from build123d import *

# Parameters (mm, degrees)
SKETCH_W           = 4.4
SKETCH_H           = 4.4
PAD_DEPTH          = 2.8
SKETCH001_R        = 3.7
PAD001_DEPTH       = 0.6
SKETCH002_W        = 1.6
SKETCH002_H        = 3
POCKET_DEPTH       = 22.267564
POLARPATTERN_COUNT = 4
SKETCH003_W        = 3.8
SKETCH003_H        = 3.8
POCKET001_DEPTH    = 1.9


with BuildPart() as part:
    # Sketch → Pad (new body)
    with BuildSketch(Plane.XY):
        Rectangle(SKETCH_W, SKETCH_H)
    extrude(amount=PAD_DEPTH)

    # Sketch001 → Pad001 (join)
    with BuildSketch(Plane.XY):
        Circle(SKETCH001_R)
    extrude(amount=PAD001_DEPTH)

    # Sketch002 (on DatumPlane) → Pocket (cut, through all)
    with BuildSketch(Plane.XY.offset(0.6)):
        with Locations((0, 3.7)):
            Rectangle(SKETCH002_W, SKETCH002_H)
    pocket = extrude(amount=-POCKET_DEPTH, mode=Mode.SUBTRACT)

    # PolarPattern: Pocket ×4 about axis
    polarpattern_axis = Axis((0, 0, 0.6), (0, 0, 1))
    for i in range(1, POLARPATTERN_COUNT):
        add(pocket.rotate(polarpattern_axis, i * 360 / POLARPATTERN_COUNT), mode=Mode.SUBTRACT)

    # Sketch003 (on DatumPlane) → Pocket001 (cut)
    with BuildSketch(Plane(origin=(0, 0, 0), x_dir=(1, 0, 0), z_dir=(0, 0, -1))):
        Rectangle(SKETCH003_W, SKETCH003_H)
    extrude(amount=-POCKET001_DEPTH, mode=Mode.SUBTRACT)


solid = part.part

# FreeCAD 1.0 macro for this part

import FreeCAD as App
import Part
import Sketcher

V = App.Vector


def add_polygon(sketch, points):
    """Adds a closed chain of lines whose ends are joined by coincident constraints."""
    first, n = sketch.GeometryCount, len(points)
    for a, b in zip(points, points[1:] + points[:1]):
        sketch.addGeometry(Part.LineSegment(App.Vector(*a, 0), App.Vector(*b, 0)), False)
    for i in range(n):
        sketch.addConstraint(Sketcher.Constraint("Coincident", first + i, 2, first + (i + 1) % n, 1))

doc = App.newDocument("Part")
body = doc.addObject("PartDesign::Body", "Body")

# Sketch on XY plane
sketch1 = body.newObject("Sketcher::SketchObject", "Sketch")
sketch1.AttachmentSupport = (doc.getObject("XY_Plane"), [""])
sketch1.MapMode = "FlatFace"
add_polygon(sketch1, [(-2.2, 2.2), (-2.2, -2.2), (2.2, -2.2), (2.2, 2.2)])  # lines 0-3
sketch1.addConstraint(Sketcher.Constraint("Vertical", 0))
sketch1.addConstraint(Sketcher.Constraint("Horizontal", 1))
sketch1.addConstraint(Sketcher.Constraint("Vertical", 2))
sketch1.addConstraint(Sketcher.Constraint("Horizontal", 3))
sketch1.addConstraint(Sketcher.Constraint("Symmetric", 0, 2, 2, 2, -1, 1))
sketch1.addConstraint(Sketcher.Constraint("Equal", 3, 0))
sketch1.addConstraint(Sketcher.Constraint("DistanceX", 1, 1, 1, 2, 4.4))
pad1 = body.newObject("PartDesign::Pad", "Pad")
pad1.Profile = sketch1
pad1.Length = 2.8

# Sketch on XY plane
sketch2 = body.newObject("Sketcher::SketchObject", "Sketch001")
sketch2.AttachmentSupport = (doc.getObject("XY_Plane"), [""])
sketch2.MapMode = "FlatFace"
sketch2.addGeometry(Part.Circle(V(0, 0, 0), V(0, 0, 1), 3.7), False)
sketch2.addConstraint(Sketcher.Constraint("Coincident", 0, 3, -1, 1))
sketch2.addConstraint(Sketcher.Constraint("Diameter", 0, 7.4))
pad2 = body.newObject("PartDesign::Pad", "Pad001")
pad2.Profile = sketch2
pad2.Length = 0.6

# Sketch on XY plane
sketch3 = body.newObject("Sketcher::SketchObject", "Sketch002")
sketch3.AttachmentSupport = (doc.getObject("XY_Plane"), [""])
sketch3.MapMode = "FlatFace"
sketch3.AttachmentOffset = App.Placement(V(0, 0, 0.6), App.Rotation())
add_polygon(sketch3, [(-0.8, 5.2), (-0.8, 2.2), (0.8, 2.2), (0.8, 5.2)])  # lines 0-3
sketch3.addConstraint(Sketcher.Constraint("Vertical", 0))
sketch3.addConstraint(Sketcher.Constraint("Horizontal", 1))
sketch3.addConstraint(Sketcher.Constraint("Vertical", 2))
sketch3.addConstraint(Sketcher.Constraint("Horizontal", 3))
sketch3.addConstraint(Sketcher.Constraint("DistanceY", 0, 2, 0, 1, 3.0))
sketch3.addConstraint(Sketcher.Constraint("DistanceX", 1, 1, 1, 2, 1.6))
sketch3.addConstraint(Sketcher.Constraint("DistanceX", 0, 2, -1, 1, 0.8))
sketch3.addConstraint(Sketcher.Constraint("DistanceY", -1, 1, 0, 2, 2.2))
pocket1 = body.newObject("PartDesign::Pocket", "Pocket")
pocket1.Profile = sketch3
pocket1.Type = "ThroughAll"
doc.recompute()

polarpattern = body.newObject("PartDesign::PolarPattern", "PolarPattern")
polarpattern.Originals = [pocket1]
polarpattern.Axis = (doc.getObject("Z_Axis"), [""])
polarpattern.Angle = 360
polarpattern.Occurrences = 4
body.Tip = polarpattern

# Sketch on XY plane
sketch4 = body.newObject("Sketcher::SketchObject", "Sketch003")
sketch4.AttachmentSupport = (doc.getObject("XY_Plane"), [""])
sketch4.MapMode = "FlatFace"
add_polygon(sketch4, [(-1.9, -1.9), (-1.9, 1.9), (1.9, 1.9), (1.9, -1.9)])  # lines 0-3
sketch4.addConstraint(Sketcher.Constraint("Vertical", 0))
sketch4.addConstraint(Sketcher.Constraint("Horizontal", 1))
sketch4.addConstraint(Sketcher.Constraint("Vertical", 2))
sketch4.addConstraint(Sketcher.Constraint("Horizontal", 3))
sketch4.addConstraint(Sketcher.Constraint("Symmetric", 0, 2, 2, 2, -1, 1))
sketch4.addConstraint(Sketcher.Constraint("Equal", 3, 0))
sketch4.addConstraint(Sketcher.Constraint("DistanceX", 1, 1, 1, 2, 3.8))
pocket2 = body.newObject("PartDesign::Pocket", "Pocket001")
pocket2.Profile = sketch4
pocket2.Length = 1.9
pocket2.Reversed = True

doc.recompute()
